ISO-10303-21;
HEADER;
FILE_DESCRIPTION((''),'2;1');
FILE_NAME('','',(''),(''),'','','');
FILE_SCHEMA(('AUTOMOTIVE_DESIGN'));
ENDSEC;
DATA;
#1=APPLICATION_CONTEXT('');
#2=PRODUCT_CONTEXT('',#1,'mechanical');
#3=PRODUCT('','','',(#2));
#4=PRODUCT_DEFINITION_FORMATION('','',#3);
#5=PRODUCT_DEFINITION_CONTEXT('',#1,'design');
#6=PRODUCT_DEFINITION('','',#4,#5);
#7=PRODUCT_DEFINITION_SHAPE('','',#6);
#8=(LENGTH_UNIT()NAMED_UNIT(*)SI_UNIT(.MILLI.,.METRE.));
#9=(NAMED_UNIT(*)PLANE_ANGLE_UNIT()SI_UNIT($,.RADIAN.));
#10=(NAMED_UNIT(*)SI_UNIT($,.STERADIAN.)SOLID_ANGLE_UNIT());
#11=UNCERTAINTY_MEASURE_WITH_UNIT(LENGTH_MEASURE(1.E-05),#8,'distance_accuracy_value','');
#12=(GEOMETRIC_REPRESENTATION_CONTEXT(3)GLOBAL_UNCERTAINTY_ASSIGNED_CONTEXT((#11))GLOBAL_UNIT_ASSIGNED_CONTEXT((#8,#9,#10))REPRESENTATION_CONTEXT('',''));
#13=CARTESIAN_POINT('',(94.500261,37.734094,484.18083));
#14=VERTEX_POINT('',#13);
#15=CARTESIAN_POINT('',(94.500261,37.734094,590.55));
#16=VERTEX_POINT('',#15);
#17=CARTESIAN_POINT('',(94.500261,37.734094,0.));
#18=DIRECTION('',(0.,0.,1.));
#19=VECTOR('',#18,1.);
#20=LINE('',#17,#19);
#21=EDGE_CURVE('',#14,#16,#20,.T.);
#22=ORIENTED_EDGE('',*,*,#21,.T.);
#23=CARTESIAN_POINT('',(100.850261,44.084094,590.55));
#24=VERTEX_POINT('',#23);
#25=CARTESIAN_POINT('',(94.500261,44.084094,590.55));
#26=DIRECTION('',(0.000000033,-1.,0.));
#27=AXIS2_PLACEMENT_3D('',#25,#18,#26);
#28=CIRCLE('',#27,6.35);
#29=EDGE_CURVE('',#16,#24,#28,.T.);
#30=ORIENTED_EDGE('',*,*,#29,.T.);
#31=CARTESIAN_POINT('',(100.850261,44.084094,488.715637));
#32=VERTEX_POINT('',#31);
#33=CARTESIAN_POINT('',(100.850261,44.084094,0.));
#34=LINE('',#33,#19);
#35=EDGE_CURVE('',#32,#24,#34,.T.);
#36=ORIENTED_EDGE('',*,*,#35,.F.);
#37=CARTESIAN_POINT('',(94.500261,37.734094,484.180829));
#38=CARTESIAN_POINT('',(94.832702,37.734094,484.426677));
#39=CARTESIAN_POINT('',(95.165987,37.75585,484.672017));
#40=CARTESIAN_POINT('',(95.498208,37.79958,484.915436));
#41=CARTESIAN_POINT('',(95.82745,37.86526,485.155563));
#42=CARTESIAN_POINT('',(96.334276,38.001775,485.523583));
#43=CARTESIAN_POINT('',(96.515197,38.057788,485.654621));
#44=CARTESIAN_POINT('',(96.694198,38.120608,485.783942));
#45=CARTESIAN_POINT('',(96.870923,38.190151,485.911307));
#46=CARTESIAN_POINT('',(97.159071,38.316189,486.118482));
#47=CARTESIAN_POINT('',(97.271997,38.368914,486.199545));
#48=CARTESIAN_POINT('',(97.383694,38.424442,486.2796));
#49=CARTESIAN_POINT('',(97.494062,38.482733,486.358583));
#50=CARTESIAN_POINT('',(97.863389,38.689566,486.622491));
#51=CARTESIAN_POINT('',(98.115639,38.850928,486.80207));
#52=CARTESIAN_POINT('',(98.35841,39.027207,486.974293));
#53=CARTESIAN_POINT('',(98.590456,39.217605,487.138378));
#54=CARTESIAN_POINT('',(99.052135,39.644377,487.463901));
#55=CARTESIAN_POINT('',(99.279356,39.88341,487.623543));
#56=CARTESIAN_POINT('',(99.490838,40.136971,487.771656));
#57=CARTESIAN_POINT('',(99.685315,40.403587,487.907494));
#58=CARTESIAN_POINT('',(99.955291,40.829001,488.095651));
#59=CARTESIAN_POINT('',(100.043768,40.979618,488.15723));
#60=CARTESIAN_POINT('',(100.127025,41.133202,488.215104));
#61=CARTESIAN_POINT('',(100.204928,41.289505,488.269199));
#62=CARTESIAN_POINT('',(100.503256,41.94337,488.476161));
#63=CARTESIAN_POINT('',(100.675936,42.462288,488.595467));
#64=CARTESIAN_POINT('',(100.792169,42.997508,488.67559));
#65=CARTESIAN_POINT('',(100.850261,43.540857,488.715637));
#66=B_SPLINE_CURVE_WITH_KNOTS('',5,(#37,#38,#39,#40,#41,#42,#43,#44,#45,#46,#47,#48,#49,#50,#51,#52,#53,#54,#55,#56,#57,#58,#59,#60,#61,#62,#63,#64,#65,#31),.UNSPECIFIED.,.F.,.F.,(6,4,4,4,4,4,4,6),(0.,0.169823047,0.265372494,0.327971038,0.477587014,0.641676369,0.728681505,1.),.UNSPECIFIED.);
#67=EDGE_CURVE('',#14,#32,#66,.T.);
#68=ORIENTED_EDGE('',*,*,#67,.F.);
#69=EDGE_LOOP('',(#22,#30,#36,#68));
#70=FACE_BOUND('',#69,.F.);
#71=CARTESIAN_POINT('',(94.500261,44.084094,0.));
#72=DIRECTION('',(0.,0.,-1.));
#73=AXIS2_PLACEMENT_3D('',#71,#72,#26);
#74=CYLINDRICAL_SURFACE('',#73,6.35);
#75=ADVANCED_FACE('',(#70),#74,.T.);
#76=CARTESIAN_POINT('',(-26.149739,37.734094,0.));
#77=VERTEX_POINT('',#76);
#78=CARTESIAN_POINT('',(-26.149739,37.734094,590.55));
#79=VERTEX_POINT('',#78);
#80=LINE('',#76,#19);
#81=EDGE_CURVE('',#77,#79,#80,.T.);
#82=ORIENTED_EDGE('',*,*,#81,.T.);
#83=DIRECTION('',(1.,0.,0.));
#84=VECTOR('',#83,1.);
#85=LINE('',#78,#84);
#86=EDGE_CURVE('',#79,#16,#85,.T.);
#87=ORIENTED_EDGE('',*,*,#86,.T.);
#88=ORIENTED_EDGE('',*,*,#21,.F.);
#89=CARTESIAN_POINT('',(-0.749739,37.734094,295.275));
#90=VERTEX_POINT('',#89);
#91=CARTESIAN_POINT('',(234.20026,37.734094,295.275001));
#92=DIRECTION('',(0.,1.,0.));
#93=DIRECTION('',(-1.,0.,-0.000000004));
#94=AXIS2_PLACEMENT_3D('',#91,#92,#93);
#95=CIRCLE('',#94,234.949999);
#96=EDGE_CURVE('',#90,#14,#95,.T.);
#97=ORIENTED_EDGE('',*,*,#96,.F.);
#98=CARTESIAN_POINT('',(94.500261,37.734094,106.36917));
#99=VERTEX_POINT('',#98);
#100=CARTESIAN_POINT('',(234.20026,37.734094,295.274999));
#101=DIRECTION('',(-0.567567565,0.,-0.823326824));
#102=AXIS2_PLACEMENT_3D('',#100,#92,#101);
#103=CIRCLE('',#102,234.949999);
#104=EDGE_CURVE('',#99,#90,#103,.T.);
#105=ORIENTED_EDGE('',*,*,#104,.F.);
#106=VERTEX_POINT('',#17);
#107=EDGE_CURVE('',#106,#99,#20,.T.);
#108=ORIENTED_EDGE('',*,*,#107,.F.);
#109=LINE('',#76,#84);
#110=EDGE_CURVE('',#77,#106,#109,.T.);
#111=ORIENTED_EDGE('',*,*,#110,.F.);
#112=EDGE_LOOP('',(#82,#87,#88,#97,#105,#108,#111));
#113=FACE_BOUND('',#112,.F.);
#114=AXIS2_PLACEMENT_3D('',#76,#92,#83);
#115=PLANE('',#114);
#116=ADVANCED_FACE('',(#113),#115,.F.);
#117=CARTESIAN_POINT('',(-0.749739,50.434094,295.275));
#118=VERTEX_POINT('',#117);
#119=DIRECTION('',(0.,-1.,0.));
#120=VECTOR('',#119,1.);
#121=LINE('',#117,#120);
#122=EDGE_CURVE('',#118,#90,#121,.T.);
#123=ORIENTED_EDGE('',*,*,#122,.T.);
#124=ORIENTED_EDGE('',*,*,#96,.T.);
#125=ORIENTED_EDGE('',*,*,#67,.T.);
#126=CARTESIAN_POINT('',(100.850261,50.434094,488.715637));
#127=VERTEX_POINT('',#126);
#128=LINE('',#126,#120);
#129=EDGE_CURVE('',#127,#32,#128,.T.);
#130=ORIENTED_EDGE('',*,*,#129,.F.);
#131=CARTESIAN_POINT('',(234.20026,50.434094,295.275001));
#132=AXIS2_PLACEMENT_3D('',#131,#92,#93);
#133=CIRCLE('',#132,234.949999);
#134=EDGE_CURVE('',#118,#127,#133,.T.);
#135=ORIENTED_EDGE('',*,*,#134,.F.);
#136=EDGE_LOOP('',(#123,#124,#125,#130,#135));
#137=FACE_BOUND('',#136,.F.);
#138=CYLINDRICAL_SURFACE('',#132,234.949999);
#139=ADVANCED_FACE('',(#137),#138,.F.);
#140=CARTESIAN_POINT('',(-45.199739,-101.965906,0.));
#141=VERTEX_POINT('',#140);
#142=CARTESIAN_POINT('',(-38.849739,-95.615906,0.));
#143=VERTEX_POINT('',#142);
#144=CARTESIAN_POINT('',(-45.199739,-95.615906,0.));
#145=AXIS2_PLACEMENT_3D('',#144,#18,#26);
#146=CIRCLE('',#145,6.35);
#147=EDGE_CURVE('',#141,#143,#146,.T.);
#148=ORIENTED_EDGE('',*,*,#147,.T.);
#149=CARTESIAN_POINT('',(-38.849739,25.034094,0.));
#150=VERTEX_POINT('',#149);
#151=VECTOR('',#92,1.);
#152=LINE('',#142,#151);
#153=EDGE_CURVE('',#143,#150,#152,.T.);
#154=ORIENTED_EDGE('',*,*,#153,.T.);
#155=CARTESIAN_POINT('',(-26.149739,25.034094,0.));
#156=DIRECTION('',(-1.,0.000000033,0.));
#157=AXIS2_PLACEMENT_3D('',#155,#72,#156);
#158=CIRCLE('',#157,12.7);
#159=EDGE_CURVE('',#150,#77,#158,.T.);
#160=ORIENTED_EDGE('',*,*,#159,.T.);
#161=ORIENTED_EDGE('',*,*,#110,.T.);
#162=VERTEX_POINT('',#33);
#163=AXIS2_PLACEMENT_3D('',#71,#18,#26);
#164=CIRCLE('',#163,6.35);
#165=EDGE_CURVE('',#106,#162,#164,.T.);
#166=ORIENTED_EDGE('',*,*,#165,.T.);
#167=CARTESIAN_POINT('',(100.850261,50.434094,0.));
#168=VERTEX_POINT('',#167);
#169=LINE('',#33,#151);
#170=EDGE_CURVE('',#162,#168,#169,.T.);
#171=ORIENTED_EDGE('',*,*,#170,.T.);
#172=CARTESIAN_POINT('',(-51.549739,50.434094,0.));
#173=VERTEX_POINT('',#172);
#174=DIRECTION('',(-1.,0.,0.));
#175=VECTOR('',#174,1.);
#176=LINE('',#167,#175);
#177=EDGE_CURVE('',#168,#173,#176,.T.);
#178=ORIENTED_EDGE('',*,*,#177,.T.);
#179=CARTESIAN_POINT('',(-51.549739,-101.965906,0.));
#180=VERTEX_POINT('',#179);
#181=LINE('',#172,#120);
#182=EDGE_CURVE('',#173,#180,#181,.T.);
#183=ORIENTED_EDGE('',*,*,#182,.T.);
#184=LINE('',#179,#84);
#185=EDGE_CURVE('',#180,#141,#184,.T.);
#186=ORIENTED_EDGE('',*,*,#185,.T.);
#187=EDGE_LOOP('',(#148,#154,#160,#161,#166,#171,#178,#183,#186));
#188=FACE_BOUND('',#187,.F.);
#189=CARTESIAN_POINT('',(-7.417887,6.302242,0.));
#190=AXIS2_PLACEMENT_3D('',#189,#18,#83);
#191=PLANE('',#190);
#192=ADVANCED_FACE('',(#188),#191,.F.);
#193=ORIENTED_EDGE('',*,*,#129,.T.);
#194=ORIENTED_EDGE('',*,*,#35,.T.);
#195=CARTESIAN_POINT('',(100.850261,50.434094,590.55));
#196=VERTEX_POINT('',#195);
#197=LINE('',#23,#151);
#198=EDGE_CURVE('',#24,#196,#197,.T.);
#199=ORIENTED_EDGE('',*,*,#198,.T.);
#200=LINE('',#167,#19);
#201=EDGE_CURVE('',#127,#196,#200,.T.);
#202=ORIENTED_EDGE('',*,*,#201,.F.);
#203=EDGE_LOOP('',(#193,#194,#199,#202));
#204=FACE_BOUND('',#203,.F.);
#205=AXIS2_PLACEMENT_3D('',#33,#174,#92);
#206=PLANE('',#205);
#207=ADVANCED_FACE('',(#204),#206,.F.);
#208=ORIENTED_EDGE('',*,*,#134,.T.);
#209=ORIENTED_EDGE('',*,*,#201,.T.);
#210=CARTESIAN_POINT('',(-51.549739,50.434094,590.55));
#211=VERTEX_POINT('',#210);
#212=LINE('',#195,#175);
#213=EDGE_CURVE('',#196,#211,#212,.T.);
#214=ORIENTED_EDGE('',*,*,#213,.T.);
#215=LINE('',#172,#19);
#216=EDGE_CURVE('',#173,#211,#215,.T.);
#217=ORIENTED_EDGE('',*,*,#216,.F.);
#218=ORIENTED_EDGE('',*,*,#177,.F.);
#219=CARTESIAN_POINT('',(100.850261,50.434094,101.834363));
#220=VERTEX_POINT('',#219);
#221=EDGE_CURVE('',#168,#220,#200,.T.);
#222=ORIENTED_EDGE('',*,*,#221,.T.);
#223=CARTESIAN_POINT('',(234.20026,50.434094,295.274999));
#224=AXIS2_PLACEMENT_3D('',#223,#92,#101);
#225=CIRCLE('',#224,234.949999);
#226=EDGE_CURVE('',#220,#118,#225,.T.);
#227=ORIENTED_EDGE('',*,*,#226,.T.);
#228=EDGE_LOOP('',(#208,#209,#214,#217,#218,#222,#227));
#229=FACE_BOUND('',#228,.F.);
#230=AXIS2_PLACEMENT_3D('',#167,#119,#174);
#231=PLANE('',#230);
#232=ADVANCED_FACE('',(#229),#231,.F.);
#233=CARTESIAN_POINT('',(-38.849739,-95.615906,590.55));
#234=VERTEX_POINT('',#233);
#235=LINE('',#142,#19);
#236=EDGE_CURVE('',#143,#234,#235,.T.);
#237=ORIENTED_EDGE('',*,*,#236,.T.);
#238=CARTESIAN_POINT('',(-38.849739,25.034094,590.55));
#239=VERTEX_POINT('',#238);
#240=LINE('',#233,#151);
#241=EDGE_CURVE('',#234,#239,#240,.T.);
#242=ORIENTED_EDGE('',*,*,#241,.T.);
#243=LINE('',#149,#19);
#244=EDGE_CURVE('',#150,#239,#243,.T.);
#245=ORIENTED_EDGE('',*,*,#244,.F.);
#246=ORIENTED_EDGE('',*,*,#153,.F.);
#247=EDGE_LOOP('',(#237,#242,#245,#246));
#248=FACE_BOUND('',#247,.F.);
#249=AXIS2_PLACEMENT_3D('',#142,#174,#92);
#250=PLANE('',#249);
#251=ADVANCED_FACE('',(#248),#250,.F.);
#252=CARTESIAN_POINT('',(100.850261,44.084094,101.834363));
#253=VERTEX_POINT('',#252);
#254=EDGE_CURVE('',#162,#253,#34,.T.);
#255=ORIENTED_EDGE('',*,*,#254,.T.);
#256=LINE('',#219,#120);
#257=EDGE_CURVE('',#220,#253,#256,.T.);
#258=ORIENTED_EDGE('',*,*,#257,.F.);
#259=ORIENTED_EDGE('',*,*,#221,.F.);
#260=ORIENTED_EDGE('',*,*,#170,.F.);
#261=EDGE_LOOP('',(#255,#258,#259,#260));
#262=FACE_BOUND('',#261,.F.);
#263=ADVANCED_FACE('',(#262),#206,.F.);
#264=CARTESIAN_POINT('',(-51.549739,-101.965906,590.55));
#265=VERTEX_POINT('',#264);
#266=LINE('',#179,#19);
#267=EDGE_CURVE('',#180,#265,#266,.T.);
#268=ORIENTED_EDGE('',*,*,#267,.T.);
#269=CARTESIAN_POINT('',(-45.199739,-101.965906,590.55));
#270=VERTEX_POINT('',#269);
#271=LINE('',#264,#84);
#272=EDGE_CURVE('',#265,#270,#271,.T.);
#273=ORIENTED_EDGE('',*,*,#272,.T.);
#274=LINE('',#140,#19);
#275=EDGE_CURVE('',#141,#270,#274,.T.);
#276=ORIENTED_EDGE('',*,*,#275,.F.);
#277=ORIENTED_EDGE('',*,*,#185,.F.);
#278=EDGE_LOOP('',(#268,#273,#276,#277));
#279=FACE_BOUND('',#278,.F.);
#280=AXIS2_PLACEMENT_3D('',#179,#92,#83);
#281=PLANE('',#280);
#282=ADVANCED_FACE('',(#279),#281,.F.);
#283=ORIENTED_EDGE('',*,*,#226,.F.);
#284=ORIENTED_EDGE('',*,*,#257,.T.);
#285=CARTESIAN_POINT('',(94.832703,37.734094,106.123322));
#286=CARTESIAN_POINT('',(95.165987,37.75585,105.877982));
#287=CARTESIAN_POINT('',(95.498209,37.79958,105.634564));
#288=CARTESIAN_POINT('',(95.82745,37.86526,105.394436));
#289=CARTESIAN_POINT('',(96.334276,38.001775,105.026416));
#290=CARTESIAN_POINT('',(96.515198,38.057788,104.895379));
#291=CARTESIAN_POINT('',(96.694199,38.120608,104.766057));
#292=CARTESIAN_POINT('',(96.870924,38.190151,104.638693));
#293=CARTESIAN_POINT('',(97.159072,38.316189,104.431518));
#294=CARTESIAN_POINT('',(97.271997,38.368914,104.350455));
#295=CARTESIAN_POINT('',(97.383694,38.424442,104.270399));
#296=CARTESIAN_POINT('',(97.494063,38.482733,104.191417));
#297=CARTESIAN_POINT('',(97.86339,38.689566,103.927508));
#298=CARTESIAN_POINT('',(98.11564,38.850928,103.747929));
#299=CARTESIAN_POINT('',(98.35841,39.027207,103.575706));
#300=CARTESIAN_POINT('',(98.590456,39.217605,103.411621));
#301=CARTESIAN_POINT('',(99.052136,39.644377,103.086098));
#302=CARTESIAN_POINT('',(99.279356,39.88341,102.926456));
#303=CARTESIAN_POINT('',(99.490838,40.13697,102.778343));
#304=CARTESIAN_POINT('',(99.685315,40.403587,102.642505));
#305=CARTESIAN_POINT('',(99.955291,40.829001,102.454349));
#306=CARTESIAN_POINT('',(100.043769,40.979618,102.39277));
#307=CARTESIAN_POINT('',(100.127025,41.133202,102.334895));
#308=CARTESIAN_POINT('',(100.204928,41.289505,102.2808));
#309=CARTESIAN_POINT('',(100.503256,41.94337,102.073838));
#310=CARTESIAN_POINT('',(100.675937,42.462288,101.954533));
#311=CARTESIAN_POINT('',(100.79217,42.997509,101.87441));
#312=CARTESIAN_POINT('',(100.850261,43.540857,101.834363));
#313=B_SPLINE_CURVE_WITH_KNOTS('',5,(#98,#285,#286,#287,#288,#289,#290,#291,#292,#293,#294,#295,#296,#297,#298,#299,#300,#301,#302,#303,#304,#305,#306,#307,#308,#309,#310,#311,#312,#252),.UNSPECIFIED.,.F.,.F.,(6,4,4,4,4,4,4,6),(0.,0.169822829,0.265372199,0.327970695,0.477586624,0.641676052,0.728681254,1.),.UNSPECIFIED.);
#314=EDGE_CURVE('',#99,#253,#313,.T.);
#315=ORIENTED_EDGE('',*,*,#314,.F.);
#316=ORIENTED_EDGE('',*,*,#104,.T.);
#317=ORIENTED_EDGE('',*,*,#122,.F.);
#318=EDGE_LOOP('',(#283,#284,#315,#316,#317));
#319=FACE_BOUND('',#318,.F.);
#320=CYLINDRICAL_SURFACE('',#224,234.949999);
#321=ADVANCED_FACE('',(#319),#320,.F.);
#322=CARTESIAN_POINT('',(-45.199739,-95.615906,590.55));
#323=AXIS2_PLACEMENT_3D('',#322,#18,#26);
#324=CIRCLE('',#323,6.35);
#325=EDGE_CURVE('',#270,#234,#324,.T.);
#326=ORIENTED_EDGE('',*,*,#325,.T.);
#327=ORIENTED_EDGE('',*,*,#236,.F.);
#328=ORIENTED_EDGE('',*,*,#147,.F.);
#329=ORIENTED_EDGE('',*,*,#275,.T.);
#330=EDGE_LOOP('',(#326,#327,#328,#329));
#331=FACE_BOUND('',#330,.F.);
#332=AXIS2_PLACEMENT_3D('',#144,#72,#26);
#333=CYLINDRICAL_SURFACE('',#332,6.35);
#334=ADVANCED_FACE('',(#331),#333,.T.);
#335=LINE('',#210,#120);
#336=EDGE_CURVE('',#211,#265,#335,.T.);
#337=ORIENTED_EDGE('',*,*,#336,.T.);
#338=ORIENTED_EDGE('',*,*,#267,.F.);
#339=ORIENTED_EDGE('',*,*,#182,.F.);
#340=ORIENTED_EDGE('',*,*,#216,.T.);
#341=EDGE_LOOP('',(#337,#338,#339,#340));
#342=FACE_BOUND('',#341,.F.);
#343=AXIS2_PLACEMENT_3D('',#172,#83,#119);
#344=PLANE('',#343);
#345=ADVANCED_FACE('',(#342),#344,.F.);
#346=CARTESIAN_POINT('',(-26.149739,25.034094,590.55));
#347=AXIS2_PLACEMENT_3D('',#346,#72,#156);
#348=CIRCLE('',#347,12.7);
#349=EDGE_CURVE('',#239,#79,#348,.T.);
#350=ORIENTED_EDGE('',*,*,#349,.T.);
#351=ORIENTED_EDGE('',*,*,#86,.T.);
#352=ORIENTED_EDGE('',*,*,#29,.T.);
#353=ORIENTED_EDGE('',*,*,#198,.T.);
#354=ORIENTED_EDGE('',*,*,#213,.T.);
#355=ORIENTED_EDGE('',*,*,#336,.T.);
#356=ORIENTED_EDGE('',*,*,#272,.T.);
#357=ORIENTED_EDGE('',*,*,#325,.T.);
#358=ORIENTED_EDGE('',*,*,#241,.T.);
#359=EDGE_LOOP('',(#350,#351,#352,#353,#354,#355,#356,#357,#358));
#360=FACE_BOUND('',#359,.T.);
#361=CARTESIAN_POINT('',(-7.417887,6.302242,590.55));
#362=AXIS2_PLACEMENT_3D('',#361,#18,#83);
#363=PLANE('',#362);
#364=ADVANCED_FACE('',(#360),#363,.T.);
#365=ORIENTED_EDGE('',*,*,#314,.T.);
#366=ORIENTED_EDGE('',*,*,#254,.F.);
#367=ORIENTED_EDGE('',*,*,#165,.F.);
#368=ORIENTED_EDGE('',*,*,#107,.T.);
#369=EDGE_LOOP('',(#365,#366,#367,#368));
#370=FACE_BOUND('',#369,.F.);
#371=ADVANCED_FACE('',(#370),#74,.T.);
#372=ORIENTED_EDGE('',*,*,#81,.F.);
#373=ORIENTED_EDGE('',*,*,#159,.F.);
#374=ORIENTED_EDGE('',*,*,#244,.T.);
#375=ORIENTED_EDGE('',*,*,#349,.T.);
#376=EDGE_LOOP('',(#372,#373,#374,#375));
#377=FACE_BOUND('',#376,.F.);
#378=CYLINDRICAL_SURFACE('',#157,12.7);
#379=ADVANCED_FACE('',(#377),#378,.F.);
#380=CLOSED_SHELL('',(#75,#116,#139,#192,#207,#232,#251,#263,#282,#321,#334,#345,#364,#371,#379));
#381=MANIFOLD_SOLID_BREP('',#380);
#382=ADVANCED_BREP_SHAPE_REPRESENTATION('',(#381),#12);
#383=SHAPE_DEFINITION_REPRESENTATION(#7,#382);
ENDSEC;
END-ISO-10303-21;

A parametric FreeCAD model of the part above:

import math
import FreeCAD as App
import Part
import Sketcher

V = App.Vector
Q = App.Units.Quantity

doc = App.newDocument("Part")
body = doc.addObject("PartDesign::Body", "Body")

sketch1 = body.newObject("Sketcher::SketchObject", "Sketch")
sketch1.AttachmentSupport = (doc.getObject("XY_Plane"), [""])
sketch1.MapMode = "FlatFace"
sketch1.addGeometry(Part.LineSegment(V(101, 44, 0), V(101, 50, 0)), False)
sketch1.addGeometry(Part.LineSegment(V(101, 50, 0), V(-52, 50, 0)), False)
sketch1.addGeometry(Part.LineSegment(V(-52, 50, 0), V(-52, -102, 0)), False)
sketch1.addGeometry(Part.LineSegment(V(-52, -102, 0), V(-45, -102, 0)), False)
sketch1.addGeometry(Part.ArcOfCircle(Part.Circle(V(-45, -96, 0), V(0, 0, 1), 6), math.radians(-90), math.radians(0)), False)
sketch1.addGeometry(Part.LineSegment(V(-39, -96, 0), V(-39, 25, 0)), False)
sketch1.addGeometry(Part.ArcOfCircle(Part.Circle(V(-26, 25, 0), V(0, 0, 1), 13), math.radians(90), math.radians(180)), False)
sketch1.addGeometry(Part.LineSegment(V(-26, 38, 0), V(95, 38, 0)), False)
sketch1.addGeometry(Part.ArcOfCircle(Part.Circle(V(95, 44, 0), V(0, 0, 1), 6), math.radians(-90), math.radians(0)), False)
sketch1.addConstraint(Sketcher.Constraint("Coincident", 0, 2, 1, 1))
sketch1.addConstraint(Sketcher.Constraint("Coincident", 1, 2, 2, 1))
sketch1.addConstraint(Sketcher.Constraint("Coincident", 2, 2, 3, 1))
sketch1.addConstraint(Sketcher.Constraint("Tangent", 3, 2, 4, 1))
sketch1.addConstraint(Sketcher.Constraint("Tangent", 4, 2, 5, 1))
sketch1.addConstraint(Sketcher.Constraint("Tangent", 5, 2, 6, 2))
sketch1.addConstraint(Sketcher.Constraint("Tangent", 6, 1, 7, 1))
sketch1.addConstraint(Sketcher.Constraint("Tangent", 7, 2, 8, 1))
sketch1.addConstraint(Sketcher.Constraint("Tangent", 8, 2, 0, 1))
sketch1.addConstraint(Sketcher.Constraint("Vertical", 0))
sketch1.addConstraint(Sketcher.Constraint("Horizontal", 1))
sketch1.addConstraint(Sketcher.Constraint("Vertical", 2))
sketch1.addConstraint(Sketcher.Constraint("Horizontal", 3))
sketch1.addConstraint(Sketcher.Constraint("Vertical", 5))
sketch1.addConstraint(Sketcher.Constraint("Horizontal", 7))
sketch1.addConstraint(Sketcher.Constraint("Equal", 4, 8))
sketch1.addConstraint(Sketcher.Constraint("Equal", 3, 0))
sketch1.addConstraint(Sketcher.Constraint("Equal", 1, 2))
sketch1.addConstraint(Sketcher.Constraint("Radius", 6, Q("0.5 in")))
sketch1.addConstraint(Sketcher.Constraint("DistanceX", 1, 2, 1, 1, Q("6 in")))
sketch1.addConstraint(Sketcher.Constraint("Radius", 4, Q("0.25 in")))
sketch1.addConstraint(Sketcher.Constraint("DistanceX", 6, 3, 0, 2, Q("5 in")))
sketch1.addConstraint(Sketcher.Constraint("DistanceX", 4, 3, -1, 1, 45.199739))
sketch1.addConstraint(Sketcher.Constraint("DistanceY", 4, 3, -1, 1, 95.615906))
pad1 = body.newObject("PartDesign::Pad", "Pad")
pad1.Profile = sketch1
pad1.Length = Q("23.25 in")

sketch2 = body.newObject("Sketcher::SketchObject", "Sketch001")
sketch2.AttachmentSupport = (doc.getObject("XZ_Plane"), [""])
sketch2.MapMode = "FlatFace"
sketch2.AttachmentOffset = App.Placement(V(0, 0, -50.434094), App.Rotation())
sketch2.addGeometry(Part.ArcOfCircle(Part.Circle(V(234, 295, 0), V(0, 0, 1), 235), math.radians(180), math.radians(235)), False)
sketch2.addGeometry(Part.ArcOfCircle(Part.Circle(V(234, 295, 0), V(0, 0, 1), 235), math.radians(125), math.radians(180)), False)
sketch2.addGeometry(Part.LineSegment(V(101, 489, 0), V(101, 102, 0)), False)
sketch2.addConstraint(Sketcher.Constraint("Tangent", 0, 1, 1, 2))
sketch2.addConstraint(Sketcher.Constraint("Coincident", 1, 1, 2, 1))
sketch2.addConstraint(Sketcher.Constraint("Coincident", 2, 2, 0, 2))
sketch2.addConstraint(Sketcher.Constraint("Vertical", 2))
sketch2.addConstraint(Sketcher.Constraint("Equal", 0, 1))
sketch2.addConstraint(Sketcher.Constraint("Horizontal", 1, 3, 0, 1))
sketch2.addConstraint(Sketcher.Constraint("Radius", 0, Q("9.2499999 in")))
sketch2.addConstraint(Sketcher.Constraint("DistanceX", 0, 1, 1, 1, Q("4 in")))
sketch2.addConstraint(Sketcher.Constraint("DistanceY", -1, 1, 0, 3, Q("11.625 in")))
sketch2.addConstraint(Sketcher.Constraint("DistanceX", -1, 1, 0, 3, 234.20026))
pocket1 = body.newObject("PartDesign::Pocket", "Pocket")
pocket1.Profile = sketch2
pocket1.Length = Q("1 in")
pocket1.Reversed = True

doc.recompute()
